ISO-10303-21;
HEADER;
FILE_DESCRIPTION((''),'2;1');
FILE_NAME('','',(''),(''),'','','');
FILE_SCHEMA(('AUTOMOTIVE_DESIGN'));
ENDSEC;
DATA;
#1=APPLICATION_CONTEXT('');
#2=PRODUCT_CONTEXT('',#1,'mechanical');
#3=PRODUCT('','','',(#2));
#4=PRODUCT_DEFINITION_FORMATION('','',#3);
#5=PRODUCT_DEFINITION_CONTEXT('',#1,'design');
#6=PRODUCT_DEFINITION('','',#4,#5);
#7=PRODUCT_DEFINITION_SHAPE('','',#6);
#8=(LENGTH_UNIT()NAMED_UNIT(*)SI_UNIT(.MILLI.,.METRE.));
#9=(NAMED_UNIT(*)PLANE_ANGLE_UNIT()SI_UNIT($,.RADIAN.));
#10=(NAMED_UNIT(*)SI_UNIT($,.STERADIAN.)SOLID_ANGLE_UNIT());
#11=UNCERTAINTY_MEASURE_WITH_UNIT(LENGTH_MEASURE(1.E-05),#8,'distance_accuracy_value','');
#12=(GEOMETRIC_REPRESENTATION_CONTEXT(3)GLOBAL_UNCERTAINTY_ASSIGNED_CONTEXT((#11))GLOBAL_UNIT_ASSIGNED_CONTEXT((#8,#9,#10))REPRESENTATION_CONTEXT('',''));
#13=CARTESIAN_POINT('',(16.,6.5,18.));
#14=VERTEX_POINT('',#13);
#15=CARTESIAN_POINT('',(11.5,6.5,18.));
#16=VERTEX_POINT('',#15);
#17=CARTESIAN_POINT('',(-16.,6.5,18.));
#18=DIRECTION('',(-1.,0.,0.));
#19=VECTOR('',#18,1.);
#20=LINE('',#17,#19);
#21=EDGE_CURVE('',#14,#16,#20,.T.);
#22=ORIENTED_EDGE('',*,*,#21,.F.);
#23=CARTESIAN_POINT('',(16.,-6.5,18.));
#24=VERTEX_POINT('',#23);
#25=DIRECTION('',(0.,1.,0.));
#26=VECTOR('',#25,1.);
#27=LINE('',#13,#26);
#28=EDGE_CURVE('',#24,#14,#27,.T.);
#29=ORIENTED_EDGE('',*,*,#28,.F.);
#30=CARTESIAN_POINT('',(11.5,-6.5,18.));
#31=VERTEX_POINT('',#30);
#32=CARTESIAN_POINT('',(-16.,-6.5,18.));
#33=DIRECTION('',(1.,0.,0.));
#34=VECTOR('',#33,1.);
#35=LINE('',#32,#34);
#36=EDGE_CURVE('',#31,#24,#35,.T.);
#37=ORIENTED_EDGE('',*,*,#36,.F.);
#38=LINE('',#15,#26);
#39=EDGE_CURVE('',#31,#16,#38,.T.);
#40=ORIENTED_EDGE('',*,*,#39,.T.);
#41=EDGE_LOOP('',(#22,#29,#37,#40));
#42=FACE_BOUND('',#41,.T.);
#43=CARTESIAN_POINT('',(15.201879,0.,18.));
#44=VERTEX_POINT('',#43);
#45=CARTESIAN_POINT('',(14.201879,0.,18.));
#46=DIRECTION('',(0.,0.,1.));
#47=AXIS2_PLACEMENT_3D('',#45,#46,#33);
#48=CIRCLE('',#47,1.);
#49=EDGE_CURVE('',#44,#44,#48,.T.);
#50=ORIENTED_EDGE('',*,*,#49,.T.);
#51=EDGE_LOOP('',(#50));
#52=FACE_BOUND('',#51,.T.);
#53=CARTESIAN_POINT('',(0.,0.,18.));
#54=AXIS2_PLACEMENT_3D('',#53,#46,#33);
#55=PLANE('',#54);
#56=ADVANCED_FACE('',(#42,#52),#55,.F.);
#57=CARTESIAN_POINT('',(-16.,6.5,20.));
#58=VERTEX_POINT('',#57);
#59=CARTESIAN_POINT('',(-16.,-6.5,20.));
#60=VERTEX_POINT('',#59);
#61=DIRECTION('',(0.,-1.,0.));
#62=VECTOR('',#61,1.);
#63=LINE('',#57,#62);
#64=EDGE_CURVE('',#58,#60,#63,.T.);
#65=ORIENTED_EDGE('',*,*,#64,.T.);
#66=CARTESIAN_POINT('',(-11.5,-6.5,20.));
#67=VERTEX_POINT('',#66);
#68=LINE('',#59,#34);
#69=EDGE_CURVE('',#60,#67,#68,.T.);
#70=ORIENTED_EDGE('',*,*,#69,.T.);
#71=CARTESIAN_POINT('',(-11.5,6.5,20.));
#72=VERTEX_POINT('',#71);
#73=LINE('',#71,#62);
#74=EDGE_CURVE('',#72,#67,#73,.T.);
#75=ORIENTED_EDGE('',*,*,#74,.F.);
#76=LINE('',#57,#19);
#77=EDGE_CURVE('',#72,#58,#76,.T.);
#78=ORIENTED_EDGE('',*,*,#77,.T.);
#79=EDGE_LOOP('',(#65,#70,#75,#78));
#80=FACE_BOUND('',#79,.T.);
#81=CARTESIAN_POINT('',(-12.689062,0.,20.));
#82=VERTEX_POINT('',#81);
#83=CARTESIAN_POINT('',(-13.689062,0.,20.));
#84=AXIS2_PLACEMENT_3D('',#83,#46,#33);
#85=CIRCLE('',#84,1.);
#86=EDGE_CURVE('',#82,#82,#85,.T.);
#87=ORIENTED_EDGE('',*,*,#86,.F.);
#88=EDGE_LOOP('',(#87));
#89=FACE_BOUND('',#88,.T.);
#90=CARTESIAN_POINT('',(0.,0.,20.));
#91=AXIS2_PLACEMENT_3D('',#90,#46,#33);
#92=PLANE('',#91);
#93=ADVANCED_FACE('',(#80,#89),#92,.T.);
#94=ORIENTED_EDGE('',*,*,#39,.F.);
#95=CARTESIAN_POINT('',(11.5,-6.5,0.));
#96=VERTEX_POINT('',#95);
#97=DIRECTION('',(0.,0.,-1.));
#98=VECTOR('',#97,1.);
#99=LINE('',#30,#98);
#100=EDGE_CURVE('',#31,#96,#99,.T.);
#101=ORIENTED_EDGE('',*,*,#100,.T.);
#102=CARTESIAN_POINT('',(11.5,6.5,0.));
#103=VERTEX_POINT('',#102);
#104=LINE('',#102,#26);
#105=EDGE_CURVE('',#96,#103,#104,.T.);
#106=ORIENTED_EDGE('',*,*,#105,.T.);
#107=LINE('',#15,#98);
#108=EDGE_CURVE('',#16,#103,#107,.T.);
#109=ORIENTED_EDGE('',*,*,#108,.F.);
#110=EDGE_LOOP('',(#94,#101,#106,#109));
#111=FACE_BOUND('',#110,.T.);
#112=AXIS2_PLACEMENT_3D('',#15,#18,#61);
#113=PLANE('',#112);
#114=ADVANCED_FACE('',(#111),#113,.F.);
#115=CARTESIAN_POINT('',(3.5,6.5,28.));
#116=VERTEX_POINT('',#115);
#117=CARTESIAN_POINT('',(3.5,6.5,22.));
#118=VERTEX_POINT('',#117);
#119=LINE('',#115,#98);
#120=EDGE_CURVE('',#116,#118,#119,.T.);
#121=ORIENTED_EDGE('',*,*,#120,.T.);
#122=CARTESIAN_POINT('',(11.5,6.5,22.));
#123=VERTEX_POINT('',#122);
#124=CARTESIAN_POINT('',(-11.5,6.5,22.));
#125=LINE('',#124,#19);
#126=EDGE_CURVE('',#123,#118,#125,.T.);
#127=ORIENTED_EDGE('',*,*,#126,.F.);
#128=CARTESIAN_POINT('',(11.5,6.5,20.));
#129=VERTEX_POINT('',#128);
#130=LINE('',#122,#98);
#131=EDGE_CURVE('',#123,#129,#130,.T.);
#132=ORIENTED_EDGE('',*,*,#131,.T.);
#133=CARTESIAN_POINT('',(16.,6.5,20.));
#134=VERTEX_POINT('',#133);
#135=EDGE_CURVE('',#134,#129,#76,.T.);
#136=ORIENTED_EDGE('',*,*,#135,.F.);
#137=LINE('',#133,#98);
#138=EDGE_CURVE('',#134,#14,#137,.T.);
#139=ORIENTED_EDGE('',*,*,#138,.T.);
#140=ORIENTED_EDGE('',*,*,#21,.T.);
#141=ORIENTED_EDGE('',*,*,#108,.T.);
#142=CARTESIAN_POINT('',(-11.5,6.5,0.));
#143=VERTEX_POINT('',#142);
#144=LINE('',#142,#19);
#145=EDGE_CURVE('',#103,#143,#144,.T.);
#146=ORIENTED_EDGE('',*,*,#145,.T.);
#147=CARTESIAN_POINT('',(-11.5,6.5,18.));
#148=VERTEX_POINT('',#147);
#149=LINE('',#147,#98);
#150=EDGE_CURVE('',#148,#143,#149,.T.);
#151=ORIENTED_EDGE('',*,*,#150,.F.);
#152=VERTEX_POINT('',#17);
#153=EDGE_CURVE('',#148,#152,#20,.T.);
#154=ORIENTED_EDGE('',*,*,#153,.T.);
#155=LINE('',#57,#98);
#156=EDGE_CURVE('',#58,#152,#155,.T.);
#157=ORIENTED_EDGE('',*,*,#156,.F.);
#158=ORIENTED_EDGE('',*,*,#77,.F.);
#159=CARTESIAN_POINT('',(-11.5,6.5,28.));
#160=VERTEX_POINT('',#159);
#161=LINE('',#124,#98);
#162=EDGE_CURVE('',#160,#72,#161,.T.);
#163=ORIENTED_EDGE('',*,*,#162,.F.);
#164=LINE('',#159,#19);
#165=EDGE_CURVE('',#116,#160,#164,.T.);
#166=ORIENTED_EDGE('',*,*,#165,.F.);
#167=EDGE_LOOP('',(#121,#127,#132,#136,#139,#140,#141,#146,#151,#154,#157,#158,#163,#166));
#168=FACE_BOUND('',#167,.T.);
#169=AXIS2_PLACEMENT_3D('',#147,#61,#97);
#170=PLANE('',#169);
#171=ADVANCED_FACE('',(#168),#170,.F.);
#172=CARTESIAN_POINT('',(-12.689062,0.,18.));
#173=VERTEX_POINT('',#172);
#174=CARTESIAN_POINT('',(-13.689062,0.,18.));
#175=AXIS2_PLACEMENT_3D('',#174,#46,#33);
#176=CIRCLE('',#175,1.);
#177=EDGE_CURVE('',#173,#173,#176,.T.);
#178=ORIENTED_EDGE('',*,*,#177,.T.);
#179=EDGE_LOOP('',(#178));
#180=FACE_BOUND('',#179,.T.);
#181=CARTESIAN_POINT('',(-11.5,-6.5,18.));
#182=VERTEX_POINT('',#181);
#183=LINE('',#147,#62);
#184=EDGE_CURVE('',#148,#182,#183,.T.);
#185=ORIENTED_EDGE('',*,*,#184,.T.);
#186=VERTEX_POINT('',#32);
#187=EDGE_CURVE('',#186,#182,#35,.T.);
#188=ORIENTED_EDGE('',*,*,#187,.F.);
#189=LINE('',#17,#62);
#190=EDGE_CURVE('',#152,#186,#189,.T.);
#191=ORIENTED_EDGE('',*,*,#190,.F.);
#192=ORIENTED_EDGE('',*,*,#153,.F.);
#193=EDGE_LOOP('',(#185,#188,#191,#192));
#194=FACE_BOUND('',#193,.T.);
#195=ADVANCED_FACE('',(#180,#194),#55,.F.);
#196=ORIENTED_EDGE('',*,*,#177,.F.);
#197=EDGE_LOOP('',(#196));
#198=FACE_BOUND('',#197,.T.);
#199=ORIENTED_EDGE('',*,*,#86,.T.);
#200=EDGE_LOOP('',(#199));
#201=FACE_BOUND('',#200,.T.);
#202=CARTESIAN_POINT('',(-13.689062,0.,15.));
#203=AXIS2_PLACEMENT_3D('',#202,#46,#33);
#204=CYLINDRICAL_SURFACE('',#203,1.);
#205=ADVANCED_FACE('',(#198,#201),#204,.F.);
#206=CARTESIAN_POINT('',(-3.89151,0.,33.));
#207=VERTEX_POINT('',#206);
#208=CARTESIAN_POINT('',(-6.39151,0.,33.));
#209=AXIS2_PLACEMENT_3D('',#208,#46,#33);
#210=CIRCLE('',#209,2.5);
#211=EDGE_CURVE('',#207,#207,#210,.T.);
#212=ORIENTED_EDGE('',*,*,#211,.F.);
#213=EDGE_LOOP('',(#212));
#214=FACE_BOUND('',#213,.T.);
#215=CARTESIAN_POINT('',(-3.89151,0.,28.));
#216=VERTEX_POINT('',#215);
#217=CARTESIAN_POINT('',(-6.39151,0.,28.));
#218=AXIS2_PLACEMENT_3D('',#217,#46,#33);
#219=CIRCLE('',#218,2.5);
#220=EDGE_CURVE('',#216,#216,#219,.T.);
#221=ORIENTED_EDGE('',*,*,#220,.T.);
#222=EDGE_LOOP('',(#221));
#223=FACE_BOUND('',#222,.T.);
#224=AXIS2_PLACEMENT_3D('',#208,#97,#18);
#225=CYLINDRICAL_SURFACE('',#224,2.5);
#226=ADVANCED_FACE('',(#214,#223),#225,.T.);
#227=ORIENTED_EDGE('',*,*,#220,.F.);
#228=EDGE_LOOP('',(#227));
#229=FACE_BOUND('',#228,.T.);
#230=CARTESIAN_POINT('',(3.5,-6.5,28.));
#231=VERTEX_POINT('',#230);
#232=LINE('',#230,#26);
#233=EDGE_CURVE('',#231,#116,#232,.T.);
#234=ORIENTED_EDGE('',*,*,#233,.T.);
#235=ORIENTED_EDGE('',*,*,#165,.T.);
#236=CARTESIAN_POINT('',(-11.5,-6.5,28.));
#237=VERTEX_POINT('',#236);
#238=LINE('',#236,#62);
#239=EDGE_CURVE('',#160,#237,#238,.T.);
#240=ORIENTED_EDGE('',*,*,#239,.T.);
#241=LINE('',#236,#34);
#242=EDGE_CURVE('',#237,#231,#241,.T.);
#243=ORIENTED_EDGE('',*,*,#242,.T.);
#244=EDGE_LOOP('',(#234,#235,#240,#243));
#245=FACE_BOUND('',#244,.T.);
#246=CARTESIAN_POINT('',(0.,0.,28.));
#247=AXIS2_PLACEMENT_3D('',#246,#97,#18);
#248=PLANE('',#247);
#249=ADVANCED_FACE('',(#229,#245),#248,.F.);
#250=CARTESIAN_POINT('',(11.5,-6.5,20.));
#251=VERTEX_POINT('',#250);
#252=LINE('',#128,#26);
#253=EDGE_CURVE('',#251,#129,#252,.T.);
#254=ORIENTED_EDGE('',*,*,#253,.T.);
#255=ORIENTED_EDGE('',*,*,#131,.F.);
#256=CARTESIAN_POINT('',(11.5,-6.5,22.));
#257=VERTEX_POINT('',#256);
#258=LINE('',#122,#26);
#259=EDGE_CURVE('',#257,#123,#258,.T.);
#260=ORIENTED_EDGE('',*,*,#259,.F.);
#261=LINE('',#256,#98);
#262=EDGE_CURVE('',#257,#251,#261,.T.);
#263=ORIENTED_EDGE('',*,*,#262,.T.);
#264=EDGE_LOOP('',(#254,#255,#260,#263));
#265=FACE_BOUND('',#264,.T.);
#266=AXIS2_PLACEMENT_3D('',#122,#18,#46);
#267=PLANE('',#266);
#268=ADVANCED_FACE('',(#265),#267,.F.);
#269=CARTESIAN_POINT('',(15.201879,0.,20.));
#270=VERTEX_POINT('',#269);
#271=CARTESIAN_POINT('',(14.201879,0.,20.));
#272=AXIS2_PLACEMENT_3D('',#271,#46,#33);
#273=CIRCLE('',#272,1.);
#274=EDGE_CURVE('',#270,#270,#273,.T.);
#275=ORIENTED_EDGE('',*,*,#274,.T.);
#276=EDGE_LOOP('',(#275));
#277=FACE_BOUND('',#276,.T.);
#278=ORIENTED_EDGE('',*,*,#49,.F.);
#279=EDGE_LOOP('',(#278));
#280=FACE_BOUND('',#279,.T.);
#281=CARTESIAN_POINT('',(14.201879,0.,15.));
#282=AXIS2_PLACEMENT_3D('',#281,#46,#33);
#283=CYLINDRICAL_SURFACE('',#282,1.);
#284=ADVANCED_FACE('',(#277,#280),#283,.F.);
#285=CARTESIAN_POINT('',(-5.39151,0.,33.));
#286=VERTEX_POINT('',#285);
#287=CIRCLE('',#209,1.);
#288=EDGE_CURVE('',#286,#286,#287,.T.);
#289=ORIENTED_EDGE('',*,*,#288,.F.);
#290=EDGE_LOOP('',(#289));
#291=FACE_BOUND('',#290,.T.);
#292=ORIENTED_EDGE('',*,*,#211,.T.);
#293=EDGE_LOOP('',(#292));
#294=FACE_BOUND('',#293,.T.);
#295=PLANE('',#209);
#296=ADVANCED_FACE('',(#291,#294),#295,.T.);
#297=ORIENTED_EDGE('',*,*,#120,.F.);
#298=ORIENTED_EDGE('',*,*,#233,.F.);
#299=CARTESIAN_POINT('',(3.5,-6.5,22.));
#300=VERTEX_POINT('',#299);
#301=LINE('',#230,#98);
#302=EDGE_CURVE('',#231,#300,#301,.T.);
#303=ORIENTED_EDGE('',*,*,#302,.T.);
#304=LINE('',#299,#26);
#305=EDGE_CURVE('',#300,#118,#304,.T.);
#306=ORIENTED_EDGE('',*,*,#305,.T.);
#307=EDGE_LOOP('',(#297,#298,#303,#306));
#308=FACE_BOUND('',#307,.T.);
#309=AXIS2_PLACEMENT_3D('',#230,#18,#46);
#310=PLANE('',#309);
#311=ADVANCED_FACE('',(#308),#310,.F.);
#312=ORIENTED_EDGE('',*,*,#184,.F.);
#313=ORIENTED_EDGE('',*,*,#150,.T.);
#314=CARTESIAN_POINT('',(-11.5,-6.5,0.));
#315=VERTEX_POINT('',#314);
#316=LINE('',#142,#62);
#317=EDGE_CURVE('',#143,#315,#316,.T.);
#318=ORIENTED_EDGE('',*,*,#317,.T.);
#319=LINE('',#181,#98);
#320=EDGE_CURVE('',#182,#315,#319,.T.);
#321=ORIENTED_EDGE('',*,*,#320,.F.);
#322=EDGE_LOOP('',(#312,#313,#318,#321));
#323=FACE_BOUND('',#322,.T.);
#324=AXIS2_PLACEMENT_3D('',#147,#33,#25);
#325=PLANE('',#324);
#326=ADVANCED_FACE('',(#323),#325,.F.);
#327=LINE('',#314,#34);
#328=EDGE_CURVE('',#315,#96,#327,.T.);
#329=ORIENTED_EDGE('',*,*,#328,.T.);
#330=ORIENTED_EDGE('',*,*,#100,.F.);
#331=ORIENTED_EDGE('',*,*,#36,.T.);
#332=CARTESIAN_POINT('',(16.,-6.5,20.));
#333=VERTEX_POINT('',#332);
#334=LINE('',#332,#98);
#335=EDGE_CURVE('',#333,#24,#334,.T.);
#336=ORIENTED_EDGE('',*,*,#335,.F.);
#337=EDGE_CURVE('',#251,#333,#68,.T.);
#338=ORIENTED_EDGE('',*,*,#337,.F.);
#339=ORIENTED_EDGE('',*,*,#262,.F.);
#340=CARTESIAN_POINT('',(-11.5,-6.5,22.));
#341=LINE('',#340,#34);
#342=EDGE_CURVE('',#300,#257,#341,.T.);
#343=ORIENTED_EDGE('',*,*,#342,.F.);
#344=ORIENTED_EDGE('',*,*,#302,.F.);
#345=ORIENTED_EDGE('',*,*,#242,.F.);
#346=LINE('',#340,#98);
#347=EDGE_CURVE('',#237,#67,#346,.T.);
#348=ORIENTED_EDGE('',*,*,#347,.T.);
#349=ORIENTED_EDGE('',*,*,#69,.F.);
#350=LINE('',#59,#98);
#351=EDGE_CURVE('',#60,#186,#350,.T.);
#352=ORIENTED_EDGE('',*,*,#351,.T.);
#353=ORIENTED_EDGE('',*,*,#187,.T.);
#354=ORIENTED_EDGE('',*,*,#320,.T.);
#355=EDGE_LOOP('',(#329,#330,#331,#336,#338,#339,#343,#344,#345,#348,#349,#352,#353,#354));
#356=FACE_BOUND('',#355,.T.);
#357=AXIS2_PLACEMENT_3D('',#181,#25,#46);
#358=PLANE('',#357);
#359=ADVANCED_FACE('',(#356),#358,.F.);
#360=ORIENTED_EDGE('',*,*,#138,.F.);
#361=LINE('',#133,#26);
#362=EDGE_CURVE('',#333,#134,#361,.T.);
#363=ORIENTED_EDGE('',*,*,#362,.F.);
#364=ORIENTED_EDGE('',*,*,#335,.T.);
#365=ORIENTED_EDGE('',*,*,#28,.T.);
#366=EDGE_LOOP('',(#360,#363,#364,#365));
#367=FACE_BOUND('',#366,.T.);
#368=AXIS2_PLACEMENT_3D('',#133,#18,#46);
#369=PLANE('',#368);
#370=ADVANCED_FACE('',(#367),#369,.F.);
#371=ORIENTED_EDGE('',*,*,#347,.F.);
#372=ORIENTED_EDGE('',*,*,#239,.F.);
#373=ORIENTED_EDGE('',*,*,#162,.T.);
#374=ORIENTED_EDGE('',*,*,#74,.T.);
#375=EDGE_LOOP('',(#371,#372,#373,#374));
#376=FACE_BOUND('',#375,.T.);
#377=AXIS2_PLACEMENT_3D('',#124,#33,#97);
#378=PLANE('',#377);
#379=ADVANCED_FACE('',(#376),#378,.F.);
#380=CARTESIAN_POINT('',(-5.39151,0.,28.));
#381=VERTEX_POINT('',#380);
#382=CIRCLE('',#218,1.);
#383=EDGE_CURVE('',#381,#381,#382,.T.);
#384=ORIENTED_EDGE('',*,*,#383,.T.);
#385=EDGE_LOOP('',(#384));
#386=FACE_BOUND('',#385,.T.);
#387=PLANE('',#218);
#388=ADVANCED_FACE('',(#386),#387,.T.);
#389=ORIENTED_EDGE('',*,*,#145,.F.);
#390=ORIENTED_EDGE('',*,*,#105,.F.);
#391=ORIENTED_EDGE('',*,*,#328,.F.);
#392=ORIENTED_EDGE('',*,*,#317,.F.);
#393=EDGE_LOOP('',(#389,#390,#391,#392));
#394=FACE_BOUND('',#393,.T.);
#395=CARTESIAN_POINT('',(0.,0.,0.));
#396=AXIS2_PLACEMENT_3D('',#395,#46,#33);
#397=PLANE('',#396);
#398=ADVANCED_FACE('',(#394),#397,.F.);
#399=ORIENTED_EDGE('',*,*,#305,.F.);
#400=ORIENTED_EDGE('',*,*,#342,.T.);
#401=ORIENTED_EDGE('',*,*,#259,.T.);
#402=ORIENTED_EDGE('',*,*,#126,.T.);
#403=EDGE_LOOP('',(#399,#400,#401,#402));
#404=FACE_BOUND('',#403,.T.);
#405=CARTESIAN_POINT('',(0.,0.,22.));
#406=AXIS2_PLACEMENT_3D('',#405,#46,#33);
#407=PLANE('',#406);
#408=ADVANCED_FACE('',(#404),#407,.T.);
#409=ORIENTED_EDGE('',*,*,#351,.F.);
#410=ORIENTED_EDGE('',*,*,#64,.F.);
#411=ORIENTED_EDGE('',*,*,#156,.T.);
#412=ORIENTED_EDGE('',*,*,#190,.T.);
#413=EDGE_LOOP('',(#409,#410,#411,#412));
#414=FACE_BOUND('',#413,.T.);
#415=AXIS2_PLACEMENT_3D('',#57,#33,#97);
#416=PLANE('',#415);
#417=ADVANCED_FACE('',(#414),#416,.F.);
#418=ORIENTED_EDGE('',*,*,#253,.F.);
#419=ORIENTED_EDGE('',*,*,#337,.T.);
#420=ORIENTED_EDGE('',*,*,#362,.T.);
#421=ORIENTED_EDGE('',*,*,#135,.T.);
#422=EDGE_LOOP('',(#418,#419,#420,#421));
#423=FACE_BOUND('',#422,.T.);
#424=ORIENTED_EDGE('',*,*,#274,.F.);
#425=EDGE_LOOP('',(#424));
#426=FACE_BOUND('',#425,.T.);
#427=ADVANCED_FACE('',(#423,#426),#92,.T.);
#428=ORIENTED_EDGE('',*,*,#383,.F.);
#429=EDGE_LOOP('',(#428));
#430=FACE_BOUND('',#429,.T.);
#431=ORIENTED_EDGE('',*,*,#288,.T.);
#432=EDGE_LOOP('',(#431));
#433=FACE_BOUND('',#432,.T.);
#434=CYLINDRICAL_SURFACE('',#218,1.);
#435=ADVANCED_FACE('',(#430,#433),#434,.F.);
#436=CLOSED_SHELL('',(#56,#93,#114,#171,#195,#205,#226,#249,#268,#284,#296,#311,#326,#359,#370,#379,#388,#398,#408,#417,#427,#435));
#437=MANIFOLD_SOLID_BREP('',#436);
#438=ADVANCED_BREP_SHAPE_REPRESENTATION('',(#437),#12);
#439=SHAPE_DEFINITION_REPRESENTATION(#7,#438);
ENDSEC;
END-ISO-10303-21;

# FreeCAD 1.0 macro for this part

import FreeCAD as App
import Part
import Sketcher

V = App.Vector


def add_polygon(sketch, points):
    """Adds a closed chain of lines whose ends are joined by coincident constraints."""
    first, n = sketch.GeometryCount, len(points)
    for a, b in zip(points, points[1:] + points[:1]):
        sketch.addGeometry(Part.LineSegment(App.Vector(*a, 0), App.Vector(*b, 0)), False)
    for i in range(n):
        sketch.addConstraint(Sketcher.Constraint("Coincident", first + i, 2, first + (i + 1) % n, 1))

doc = App.newDocument("Part")
body = doc.addObject("PartDesign::Body", "Body")

# Sketch on XY plane
sketch1 = body.newObject("Sketcher::SketchObject", "Sketch")
sketch1.AttachmentSupport = (doc.getObject("XY_Plane"), [""])
sketch1.MapMode = "FlatFace"
add_polygon(sketch1, [(-12, 6), (-12, -6), (12, -6), (12, 6)])  # lines 0-3
sketch1.addConstraint(Sketcher.Constraint("Vertical", 0))
sketch1.addConstraint(Sketcher.Constraint("Horizontal", 1))
sketch1.addConstraint(Sketcher.Constraint("Vertical", 2))
sketch1.addConstraint(Sketcher.Constraint("Horizontal", 3))
sketch1.addConstraint(Sketcher.Constraint("Symmetric", 0, 2, 2, 2, -1, 1))
sketch1.addConstraint(Sketcher.Constraint("DistanceX", 1, 1, 1, 2, 23.0))
sketch1.addConstraint(Sketcher.Constraint("DistanceY", 0, 2, 0, 1, 13.0))
pad1 = body.newObject("PartDesign::Pad", "Pad")
pad1.Profile = sketch1
pad1.Length = 18

# Sketch on XY plane
sketch2 = body.newObject("Sketcher::SketchObject", "Sketch001")
sketch2.AttachmentSupport = (doc.getObject("XY_Plane"), [""])
sketch2.MapMode = "FlatFace"
sketch2.AttachmentOffset = App.Placement(V(0, 0, 18), App.Rotation())
add_polygon(sketch2, [(-16, 6), (-16, -6), (16, -6), (16, 6)])  # lines 0-3
sketch2.addConstraint(Sketcher.Constraint("Vertical", 0))
sketch2.addConstraint(Sketcher.Constraint("Horizontal", 1))
sketch2.addConstraint(Sketcher.Constraint("Vertical", 2))
sketch2.addConstraint(Sketcher.Constraint("Horizontal", 3))
sketch2.addConstraint(Sketcher.Constraint("Symmetric", 0, 2, 2, 2, -1, 1))
sketch2.addConstraint(Sketcher.Constraint("DistanceX", 1, 1, 1, 2, 32.0))
sketch2.addConstraint(Sketcher.Constraint("DistanceY", 0, 2, 0, 1, 13.0))
pad2 = body.newObject("PartDesign::Pad", "Pad001")
pad2.Profile = sketch2
pad2.Length = 2

# Sketch on XY plane
sketch3 = body.newObject("Sketcher::SketchObject", "Sketch002")
sketch3.AttachmentSupport = (doc.getObject("XY_Plane"), [""])
sketch3.MapMode = "FlatFace"
sketch3.AttachmentOffset = App.Placement(V(0, 0, 20), App.Rotation())
add_polygon(sketch3, [(-12, 6), (-12, -6), (12, -6), (12, 6)])  # lines 0-3
sketch3.addConstraint(Sketcher.Constraint("Vertical", 0))
sketch3.addConstraint(Sketcher.Constraint("Horizontal", 1))
sketch3.addConstraint(Sketcher.Constraint("Vertical", 2))
sketch3.addConstraint(Sketcher.Constraint("Horizontal", 3))
sketch3.addConstraint(Sketcher.Constraint("Symmetric", 0, 2, 2, 2, -1, 1))
sketch3.addConstraint(Sketcher.Constraint("DistanceX", 1, 1, 1, 2, 23.0))
sketch3.addConstraint(Sketcher.Constraint("DistanceY", 0, 2, 0, 1, 13.0))
pad3 = body.newObject("PartDesign::Pad", "Pad002")
pad3.Profile = sketch3
pad3.Length = 2

# Sketch on XY plane
sketch4 = body.newObject("Sketcher::SketchObject", "Sketch003")
sketch4.AttachmentSupport = (doc.getObject("XY_Plane"), [""])
sketch4.MapMode = "FlatFace"
sketch4.AttachmentOffset = App.Placement(V(0, 0, 22), App.Rotation())
add_polygon(sketch4, [(-12, 6), (-12, -6), (4, -6), (4, 6)])  # lines 0-3
sketch4.addConstraint(Sketcher.Constraint("Vertical", 0))
sketch4.addConstraint(Sketcher.Constraint("Horizontal", 1))
sketch4.addConstraint(Sketcher.Constraint("Vertical", 2))
sketch4.addConstraint(Sketcher.Constraint("Horizontal", 3))
sketch4.addConstraint(Sketcher.Constraint("DistanceX", 1, 1, 1, 2, 15.0))
sketch4.addConstraint(Sketcher.Constraint("DistanceY", 0, 2, 0, 1, 13.0))
sketch4.addConstraint(Sketcher.Constraint("DistanceX", 0, 2, -1, 1, 11.5))
sketch4.addConstraint(Sketcher.Constraint("DistanceY", 0, 2, -1, 1, 6.5))
pad4 = body.newObject("PartDesign::Pad", "Pad003")
pad4.Profile = sketch4
pad4.Length = 6

# Sketch on XY plane
sketch5 = body.newObject("Sketcher::SketchObject", "Sketch004")
sketch5.AttachmentSupport = (doc.getObject("XY_Plane"), [""])
sketch5.MapMode = "FlatFace"
sketch5.AttachmentOffset = App.Placement(V(0, 0, 28), App.Rotation())
sketch5.addGeometry(Part.Circle(V(-6.4, 0, 0), V(0, 0, 1), 2.5), False)
sketch5.addConstraint(Sketcher.Constraint("PointOnObject", 0, 3, -1))
sketch5.addConstraint(Sketcher.Constraint("Diameter", 0, 5.0))
sketch5.addConstraint(Sketcher.Constraint("DistanceX", 0, 3, -1, 1, 6.39151))
pad5 = body.newObject("PartDesign::Pad", "Pad004")
pad5.Profile = sketch5
pad5.Length = 5

# Sketch on XY plane
sketch6 = body.newObject("Sketcher::SketchObject", "Sketch005")
sketch6.AttachmentSupport = (doc.getObject("XY_Plane"), [""])
sketch6.MapMode = "FlatFace"
sketch6.AttachmentOffset = App.Placement(V(0, 0, 33), App.Rotation())
sketch6.addGeometry(Part.Circle(V(-6.4, 0, 0), V(0, 0, 1), 1), False)
sketch6.addConstraint(Sketcher.Constraint("PointOnObject", 0, 3, -1))
sketch6.addConstraint(Sketcher.Constraint("Diameter", 0, 2.0))
sketch6.addConstraint(Sketcher.Constraint("DistanceX", 0, 3, -1, 1, 6.39151))
pocket1 = body.newObject("PartDesign::Pocket", "Pocket")
pocket1.Profile = sketch6
pocket1.Length = 5

# Sketch on XY plane
sketch7 = body.newObject("Sketcher::SketchObject", "Sketch006")
sketch7.AttachmentSupport = (doc.getObject("XY_Plane"), [""])
sketch7.MapMode = "FlatFace"
sketch7.AttachmentOffset = App.Placement(V(0, 0, 20), App.Rotation())
sketch7.addGeometry(Part.Circle(V(-13.7, 0, 0), V(0, 0, 1), 1), False)
sketch7.addGeometry(Part.Circle(V(14.2, 0, 0), V(0, 0, 1), 1), False)
sketch7.addConstraint(Sketcher.Constraint("Equal", 0, 1))
sketch7.addConstraint(Sketcher.Constraint("PointOnObject", 0, 3, -1))
sketch7.addConstraint(Sketcher.Constraint("PointOnObject", 1, 3, -1))
sketch7.addConstraint(Sketcher.Constraint("Diameter", 0, 2.0))
sketch7.addConstraint(Sketcher.Constraint("DistanceX", 0, 3, -1, 1, 13.689062))
sketch7.addConstraint(Sketcher.Constraint("DistanceX", -1, 1, 1, 3, 14.201879))
pocket2 = body.newObject("PartDesign::Pocket", "Pocket001")
pocket2.Profile = sketch7
pocket2.Length = 5

doc.recompute()
